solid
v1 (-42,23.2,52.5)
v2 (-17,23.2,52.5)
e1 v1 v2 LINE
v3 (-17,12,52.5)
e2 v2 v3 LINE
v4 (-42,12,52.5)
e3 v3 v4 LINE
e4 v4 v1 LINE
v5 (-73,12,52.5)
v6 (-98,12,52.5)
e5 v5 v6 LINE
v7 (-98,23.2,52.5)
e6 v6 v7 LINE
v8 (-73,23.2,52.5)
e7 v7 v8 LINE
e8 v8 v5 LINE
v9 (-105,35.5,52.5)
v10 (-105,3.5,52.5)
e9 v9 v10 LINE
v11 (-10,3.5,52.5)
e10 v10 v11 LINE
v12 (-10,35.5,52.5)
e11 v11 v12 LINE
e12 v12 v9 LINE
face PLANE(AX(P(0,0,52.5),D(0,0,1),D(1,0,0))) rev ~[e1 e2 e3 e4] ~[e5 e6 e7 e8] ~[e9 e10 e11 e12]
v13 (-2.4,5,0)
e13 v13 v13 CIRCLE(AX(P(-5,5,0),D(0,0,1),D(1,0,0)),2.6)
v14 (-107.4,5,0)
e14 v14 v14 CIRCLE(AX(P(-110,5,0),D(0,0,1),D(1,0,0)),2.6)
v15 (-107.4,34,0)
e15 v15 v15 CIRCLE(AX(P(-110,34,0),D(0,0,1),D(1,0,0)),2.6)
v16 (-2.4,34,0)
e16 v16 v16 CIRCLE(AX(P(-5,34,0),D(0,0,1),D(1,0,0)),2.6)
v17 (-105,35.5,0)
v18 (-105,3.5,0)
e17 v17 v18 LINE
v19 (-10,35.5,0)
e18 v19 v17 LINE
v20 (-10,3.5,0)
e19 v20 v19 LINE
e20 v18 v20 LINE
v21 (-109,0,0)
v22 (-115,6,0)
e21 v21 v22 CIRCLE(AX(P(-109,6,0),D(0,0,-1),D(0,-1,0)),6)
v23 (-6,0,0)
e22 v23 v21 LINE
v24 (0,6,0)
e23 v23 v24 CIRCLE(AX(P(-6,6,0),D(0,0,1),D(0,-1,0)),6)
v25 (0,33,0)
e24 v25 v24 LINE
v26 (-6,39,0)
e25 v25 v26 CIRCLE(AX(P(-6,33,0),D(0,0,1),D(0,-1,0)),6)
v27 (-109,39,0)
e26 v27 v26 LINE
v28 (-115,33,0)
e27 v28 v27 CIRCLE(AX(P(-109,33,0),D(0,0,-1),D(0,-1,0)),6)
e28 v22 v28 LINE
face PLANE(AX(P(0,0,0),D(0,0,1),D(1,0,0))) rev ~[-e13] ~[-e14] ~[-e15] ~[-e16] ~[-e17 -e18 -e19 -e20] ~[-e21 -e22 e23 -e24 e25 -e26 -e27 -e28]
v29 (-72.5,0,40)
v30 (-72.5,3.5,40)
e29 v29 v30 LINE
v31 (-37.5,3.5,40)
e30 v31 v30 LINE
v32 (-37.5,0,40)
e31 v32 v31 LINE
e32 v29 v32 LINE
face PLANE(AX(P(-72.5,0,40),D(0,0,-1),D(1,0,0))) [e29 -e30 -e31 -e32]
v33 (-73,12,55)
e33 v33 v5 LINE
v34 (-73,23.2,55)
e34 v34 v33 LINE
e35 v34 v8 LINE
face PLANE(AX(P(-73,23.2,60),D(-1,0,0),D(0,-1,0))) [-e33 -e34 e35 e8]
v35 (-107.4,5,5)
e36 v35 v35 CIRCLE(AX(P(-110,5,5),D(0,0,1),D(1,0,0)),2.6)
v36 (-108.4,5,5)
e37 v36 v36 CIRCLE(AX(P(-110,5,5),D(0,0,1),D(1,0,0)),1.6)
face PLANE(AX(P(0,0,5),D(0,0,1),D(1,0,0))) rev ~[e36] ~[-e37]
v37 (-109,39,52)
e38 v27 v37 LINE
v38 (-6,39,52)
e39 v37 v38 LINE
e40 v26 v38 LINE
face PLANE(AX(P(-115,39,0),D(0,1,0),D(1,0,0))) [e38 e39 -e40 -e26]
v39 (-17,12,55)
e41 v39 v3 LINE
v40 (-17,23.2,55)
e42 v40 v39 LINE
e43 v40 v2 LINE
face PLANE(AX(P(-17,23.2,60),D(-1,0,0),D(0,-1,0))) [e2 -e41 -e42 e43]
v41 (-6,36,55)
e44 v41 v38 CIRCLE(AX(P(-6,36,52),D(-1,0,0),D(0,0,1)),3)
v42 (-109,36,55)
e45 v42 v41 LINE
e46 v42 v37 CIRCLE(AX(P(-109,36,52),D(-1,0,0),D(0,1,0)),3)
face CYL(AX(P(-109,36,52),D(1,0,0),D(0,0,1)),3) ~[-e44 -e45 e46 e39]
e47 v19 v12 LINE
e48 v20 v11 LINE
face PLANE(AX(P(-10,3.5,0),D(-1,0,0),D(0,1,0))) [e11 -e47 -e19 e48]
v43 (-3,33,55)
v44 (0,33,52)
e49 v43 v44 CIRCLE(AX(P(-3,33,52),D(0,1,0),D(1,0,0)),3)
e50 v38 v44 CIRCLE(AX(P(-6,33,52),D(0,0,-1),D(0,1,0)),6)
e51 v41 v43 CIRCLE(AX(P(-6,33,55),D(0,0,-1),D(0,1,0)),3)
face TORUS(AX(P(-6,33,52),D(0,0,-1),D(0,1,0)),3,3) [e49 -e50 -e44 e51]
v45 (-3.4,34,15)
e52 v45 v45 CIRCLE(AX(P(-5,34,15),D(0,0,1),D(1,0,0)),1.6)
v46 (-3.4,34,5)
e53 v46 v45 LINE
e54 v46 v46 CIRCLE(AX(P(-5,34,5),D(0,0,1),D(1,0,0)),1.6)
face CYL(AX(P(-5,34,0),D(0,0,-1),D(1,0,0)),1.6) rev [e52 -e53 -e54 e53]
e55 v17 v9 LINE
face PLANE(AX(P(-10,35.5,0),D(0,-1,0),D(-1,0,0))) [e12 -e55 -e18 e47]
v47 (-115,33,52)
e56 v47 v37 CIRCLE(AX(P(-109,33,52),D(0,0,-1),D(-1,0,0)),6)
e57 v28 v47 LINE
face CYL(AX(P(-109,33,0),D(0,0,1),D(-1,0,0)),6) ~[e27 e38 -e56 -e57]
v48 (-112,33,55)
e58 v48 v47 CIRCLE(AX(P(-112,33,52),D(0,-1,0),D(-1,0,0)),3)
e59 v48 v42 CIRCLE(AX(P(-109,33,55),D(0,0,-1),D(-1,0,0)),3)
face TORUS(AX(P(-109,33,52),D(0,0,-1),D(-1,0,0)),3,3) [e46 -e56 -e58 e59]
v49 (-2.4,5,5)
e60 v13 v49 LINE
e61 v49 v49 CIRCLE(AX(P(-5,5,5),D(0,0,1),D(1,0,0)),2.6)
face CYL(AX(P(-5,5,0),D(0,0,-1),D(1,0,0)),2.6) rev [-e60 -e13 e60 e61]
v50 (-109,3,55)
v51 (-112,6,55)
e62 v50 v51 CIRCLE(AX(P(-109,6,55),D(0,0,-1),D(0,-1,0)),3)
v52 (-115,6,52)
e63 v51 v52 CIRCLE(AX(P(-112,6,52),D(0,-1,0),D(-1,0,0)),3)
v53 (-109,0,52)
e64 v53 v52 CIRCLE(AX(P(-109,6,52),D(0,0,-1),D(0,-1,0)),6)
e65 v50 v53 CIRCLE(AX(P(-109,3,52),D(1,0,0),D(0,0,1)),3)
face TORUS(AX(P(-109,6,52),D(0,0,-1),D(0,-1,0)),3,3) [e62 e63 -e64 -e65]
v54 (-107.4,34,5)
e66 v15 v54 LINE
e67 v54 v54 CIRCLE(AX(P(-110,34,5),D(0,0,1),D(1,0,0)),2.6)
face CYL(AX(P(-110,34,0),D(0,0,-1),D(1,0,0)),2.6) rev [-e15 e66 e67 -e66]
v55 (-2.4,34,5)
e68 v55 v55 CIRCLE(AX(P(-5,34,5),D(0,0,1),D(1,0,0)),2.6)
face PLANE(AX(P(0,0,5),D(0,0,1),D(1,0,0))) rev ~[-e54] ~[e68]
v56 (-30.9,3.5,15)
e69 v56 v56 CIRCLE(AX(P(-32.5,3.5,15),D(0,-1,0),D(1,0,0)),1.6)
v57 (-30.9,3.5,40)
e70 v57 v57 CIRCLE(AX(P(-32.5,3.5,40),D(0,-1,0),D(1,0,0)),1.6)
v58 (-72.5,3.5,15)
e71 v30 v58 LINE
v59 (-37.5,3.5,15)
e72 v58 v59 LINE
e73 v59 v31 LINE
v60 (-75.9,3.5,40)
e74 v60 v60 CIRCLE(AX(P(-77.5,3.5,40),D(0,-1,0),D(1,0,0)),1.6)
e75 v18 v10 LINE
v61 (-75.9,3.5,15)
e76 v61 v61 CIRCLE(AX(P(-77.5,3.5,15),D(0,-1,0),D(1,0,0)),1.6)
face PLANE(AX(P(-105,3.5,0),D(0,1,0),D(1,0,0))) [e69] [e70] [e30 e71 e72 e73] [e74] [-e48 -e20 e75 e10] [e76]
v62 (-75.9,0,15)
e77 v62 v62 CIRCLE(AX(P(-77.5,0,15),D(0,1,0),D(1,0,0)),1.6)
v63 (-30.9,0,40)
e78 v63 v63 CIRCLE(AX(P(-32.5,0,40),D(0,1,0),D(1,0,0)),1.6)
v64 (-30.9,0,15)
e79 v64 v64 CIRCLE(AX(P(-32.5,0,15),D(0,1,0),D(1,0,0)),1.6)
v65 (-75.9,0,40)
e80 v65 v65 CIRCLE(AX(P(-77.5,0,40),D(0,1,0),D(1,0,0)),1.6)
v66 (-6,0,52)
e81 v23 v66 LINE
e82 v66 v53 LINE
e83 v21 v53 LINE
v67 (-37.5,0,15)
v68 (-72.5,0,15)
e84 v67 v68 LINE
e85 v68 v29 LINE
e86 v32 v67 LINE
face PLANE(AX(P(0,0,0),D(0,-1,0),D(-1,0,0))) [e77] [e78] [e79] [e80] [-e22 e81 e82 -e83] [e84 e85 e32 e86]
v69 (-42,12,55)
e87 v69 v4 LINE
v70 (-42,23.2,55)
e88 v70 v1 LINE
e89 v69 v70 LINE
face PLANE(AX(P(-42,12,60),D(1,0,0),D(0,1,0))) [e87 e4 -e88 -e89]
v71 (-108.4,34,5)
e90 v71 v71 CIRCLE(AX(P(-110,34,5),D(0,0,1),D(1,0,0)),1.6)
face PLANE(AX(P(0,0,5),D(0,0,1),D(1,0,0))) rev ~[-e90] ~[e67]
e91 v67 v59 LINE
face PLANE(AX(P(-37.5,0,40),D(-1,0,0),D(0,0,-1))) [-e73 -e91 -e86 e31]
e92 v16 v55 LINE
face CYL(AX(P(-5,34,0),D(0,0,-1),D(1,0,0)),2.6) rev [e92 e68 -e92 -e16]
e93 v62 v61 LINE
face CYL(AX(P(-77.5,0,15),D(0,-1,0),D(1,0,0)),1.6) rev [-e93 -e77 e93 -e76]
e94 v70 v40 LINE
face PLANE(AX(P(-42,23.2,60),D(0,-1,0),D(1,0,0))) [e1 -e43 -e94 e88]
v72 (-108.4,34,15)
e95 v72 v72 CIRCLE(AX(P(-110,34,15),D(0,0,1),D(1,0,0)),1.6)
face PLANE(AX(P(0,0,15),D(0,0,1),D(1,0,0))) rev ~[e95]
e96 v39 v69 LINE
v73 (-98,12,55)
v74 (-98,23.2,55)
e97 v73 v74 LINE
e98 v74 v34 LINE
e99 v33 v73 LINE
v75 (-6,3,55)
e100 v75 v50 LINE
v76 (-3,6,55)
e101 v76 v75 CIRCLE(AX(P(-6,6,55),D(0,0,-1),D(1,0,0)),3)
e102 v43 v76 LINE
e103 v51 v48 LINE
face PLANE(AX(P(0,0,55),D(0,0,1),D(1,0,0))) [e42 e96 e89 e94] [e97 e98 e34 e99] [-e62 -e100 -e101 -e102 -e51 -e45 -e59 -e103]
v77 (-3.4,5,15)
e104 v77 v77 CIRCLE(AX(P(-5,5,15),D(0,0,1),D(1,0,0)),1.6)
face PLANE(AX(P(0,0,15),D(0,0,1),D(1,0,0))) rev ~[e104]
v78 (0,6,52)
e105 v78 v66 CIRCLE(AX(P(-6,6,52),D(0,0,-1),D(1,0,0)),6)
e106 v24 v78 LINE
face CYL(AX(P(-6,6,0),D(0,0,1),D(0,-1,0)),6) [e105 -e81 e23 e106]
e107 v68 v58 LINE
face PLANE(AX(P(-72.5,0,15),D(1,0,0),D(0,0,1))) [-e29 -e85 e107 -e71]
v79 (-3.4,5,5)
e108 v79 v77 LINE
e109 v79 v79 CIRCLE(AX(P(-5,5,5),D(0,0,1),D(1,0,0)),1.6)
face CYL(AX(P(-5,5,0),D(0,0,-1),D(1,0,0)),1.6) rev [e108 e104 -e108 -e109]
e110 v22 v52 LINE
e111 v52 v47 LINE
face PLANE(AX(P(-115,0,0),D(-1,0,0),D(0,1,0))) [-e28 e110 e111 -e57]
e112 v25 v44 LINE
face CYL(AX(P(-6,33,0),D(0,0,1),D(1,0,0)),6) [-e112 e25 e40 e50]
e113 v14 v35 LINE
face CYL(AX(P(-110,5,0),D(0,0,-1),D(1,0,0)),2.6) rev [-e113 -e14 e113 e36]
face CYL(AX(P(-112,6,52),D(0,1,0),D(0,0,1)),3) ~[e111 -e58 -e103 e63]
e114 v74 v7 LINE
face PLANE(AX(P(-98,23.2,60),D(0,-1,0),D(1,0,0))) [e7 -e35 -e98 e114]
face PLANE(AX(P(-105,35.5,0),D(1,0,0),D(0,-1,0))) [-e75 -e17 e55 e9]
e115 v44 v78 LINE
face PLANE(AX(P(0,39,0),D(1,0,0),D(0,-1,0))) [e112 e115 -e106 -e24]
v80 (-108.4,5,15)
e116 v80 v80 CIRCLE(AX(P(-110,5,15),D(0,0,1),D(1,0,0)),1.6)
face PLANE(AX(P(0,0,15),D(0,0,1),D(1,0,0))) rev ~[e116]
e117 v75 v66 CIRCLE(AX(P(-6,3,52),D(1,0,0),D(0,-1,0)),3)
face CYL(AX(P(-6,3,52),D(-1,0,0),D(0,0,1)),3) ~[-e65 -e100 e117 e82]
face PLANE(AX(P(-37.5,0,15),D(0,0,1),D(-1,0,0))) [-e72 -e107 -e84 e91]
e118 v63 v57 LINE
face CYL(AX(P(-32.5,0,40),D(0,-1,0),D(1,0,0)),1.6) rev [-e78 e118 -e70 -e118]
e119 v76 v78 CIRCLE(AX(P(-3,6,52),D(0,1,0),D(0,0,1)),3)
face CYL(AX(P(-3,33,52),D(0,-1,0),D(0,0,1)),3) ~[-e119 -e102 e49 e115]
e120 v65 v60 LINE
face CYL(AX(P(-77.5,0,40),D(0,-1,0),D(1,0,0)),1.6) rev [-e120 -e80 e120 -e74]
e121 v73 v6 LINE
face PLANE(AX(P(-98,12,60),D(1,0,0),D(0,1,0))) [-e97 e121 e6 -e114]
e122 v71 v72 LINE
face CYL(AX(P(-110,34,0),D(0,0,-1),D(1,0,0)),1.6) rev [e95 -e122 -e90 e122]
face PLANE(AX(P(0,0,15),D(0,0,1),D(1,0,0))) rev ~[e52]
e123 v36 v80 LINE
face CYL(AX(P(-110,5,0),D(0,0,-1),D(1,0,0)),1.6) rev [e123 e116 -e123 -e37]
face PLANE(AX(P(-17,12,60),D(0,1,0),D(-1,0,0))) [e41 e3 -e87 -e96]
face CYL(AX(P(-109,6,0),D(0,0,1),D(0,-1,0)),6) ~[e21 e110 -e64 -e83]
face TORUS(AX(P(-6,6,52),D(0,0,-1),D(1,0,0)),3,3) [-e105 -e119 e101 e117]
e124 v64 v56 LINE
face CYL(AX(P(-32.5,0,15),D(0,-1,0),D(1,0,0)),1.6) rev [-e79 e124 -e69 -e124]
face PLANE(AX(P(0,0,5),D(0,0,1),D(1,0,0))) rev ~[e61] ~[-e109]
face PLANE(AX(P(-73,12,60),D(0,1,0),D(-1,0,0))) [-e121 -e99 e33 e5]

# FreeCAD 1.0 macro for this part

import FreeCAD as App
import Part
import Sketcher

V = App.Vector


def edges_at(feature, points):
    """Names of the edges that pass closest to the given points."""
    edges = feature.Shape.Edges
    near = lambda p: min(range(len(edges)), key=lambda i: edges[i].distToShape(Part.Vertex(*p))[0])
    return sorted({f"Edge{near(p) + 1}" for p in points})

doc = App.newDocument("Part")
body = doc.addObject("PartDesign::Body", "Body")

sketch1 = doc.addObject("Sketcher::SketchObject", "Sketch")
body.addObject(sketch1)
sketch1.AttachmentSupport = (doc.XY_Plane, [""])
sketch1.MapMode = "FlatFace"
sketch1.addGeometry(Part.LineSegment(V(-115, 0, 0), V(0, 0, 0)), False)
sketch1.addGeometry(Part.LineSegment(V(0, 0, 0), V(0, 39, 0)), False)
sketch1.addGeometry(Part.LineSegment(V(0, 39, 0), V(-115, 39, 0)), False)
sketch1.addGeometry(Part.LineSegment(V(-115, 39, 0), V(-115, 0, 0)), False)
sketch1.addConstraint(Sketcher.Constraint("Coincident", 0, 2, 1, 1))
sketch1.addConstraint(Sketcher.Constraint("Coincident", 1, 2, 2, 1))
sketch1.addConstraint(Sketcher.Constraint("Coincident", 2, 2, 3, 1))
sketch1.addConstraint(Sketcher.Constraint("Coincident", 3, 2, 0, 1))
sketch1.addConstraint(Sketcher.Constraint("Horizontal", 0))
sketch1.addConstraint(Sketcher.Constraint("Vertical", 1))
sketch1.addConstraint(Sketcher.Constraint("Horizontal", 2))
sketch1.addConstraint(Sketcher.Constraint("Vertical", 3))
sketch1.addConstraint(Sketcher.Constraint("Coincident", 0, 2, -1, 1))
sketch1.addConstraint(Sketcher.Constraint("DistanceX", 0, 1, 0, 2, 115.0))
sketch1.addConstraint(Sketcher.Constraint("DistanceY", 1, 1, 1, 2, 39.0))
pad1 = doc.addObject("PartDesign::Pad", "Pad")
body.addObject(pad1)
pad1.Profile = sketch1
pad1.Length = 55

sketch2 = doc.addObject("Sketcher::SketchObject", "Sketch001")
body.addObject(sketch2)
sketch2.AttachmentSupport = (doc.XY_Plane, [""])
sketch2.MapMode = "FlatFace"
sketch2.addGeometry(Part.LineSegment(V(-10, 3.5, 0), V(-10, 35.5, 0)), False)
sketch2.addGeometry(Part.LineSegment(V(-10, 35.5, 0), V(-105, 35.5, 0)), False)
sketch2.addGeometry(Part.LineSegment(V(-105, 35.5, 0), V(-105, 3.5, 0)), False)
sketch2.addGeometry(Part.LineSegment(V(-105, 3.5, 0), V(-10, 3.5, 0)), False)
sketch2.addConstraint(Sketcher.Constraint("Coincident", 0, 2, 1, 1))
sketch2.addConstraint(Sketcher.Constraint("Coincident", 1, 2, 2, 1))
sketch2.addConstraint(Sketcher.Constraint("Coincident", 2, 2, 3, 1))
sketch2.addConstraint(Sketcher.Constraint("Coincident", 3, 2, 0, 1))
sketch2.addConstraint(Sketcher.Constraint("Vertical", 0))
sketch2.addConstraint(Sketcher.Constraint("Horizontal", 1))
sketch2.addConstraint(Sketcher.Constraint("Vertical", 2))
sketch2.addConstraint(Sketcher.Constraint("Horizontal", 3))
sketch2.addConstraint(Sketcher.Constraint("DistanceX", 1, 2, 1, 1, 95.0))
sketch2.addConstraint(Sketcher.Constraint("DistanceY", 0, 1, 0, 2, 32.0))
sketch2.addConstraint(Sketcher.Constraint("DistanceX", 0, 2, -1, 1, 10.0))
sketch2.addConstraint(Sketcher.Constraint("DistanceY", -1, 1, 2, 2, 3.5))
pocket1 = doc.addObject("PartDesign::Pocket", "Pocket")
body.addObject(pocket1)
pocket1.Profile = sketch2
pocket1.Length = 52.5
pocket1.Reversed = True

sketch3 = doc.addObject("Sketcher::SketchObject", "Sketch002")
body.addObject(sketch3)
sketch3.AttachmentSupport = (doc.XY_Plane, [""])
sketch3.MapMode = "FlatFace"
sketch3.addGeometry(Part.Circle(V(-5, 34, 0), V(0, 0, 1), 2.6), False)
sketch3.addGeometry(Part.Circle(V(-5, 34, 0), V(0, 0, 1), 1.6), False)
sketch3.addGeometry(Part.Circle(V(-5, 5, 0), V(0, 0, 1), 2.6), False)
sketch3.addGeometry(Part.Circle(V(-5, 5, 0), V(0, 0, 1), 1.6), False)
sketch3.addGeometry(Part.Circle(V(-110, 5, 0), V(0, 0, 1), 2.6), False)
sketch3.addGeometry(Part.Circle(V(-110, 5, 0), V(0, 0, 1), 1.6), False)
sketch3.addGeometry(Part.Circle(V(-110, 34, 0), V(0, 0, 1), 2.6), False)
sketch3.addGeometry(Part.Circle(V(-110, 34, 0), V(0, 0, 1), 1.6), False)
sketch3.addConstraint(Sketcher.Constraint("Coincident", 1, 3, 0, 3))
sketch3.addConstraint(Sketcher.Constraint("Coincident", 3, 3, 2, 3))
sketch3.addConstraint(Sketcher.Constraint("Coincident", 5, 3, 4, 3))
sketch3.addConstraint(Sketcher.Constraint("Coincident", 7, 3, 6, 3))
sketch3.addConstraint(Sketcher.Constraint("Equal", 0, 2))
sketch3.addConstraint(Sketcher.Constraint("Equal", 1, 3))
sketch3.addConstraint(Sketcher.Constraint("Equal", 2, 4))
sketch3.addConstraint(Sketcher.Constraint("Equal", 3, 5))
sketch3.addConstraint(Sketcher.Constraint("Equal", 4, 6))
sketch3.addConstraint(Sketcher.Constraint("Equal", 5, 7))
sketch3.addConstraint(Sketcher.Constraint("Horizontal", 3, 3, 4, 3))
sketch3.addConstraint(Sketcher.Constraint("Horizontal", 1, 3, 6, 3))
sketch3.addConstraint(Sketcher.Constraint("Vertical", 1, 3, 2, 3))
sketch3.addConstraint(Sketcher.Constraint("Vertical", 5, 3, 6, 3))
sketch3.addConstraint(Sketcher.Constraint("Diameter", 0, 5.2))
sketch3.addConstraint(Sketcher.Constraint("Diameter", 1, 3.2))
sketch3.addConstraint(Sketcher.Constraint("DistanceX", 0, 3, -1, 1, 5.0))
sketch3.addConstraint(Sketcher.Constraint("DistanceY", -1, 1, 2, 3, 5.0))
sketch3.addConstraint(Sketcher.Constraint("DistanceY", -1, 1, 0, 3, 34.0))
sketch3.addConstraint(Sketcher.Constraint("DistanceX", 4, 3, -1, 1, 110.0))
pocket2 = doc.addObject("PartDesign::Pocket", "Pocket001")
body.addObject(pocket2)
pocket2.Profile = sketch3
pocket2.Length = 5
pocket2.Reversed = True

sketch4 = doc.addObject("Sketcher::SketchObject", "Sketch003")
body.addObject(sketch4)
sketch4.AttachmentSupport = (doc.XY_Plane, [""])
sketch4.MapMode = "FlatFace"
sketch4.addGeometry(Part.Circle(V(-5, 34, 0), V(0, 0, 1), 1.6), False)
sketch4.addGeometry(Part.Circle(V(-5, 5, 0), V(0, 0, 1), 1.6), False)
sketch4.addGeometry(Part.Circle(V(-110, 5, 0), V(0, 0, 1), 1.6), False)
sketch4.addGeometry(Part.Circle(V(-110, 34, 0), V(0, 0, 1), 1.6), False)
sketch4.addConstraint(Sketcher.Constraint("Equal", 0, 1))
sketch4.addConstraint(Sketcher.Constraint("Equal", 1, 2))
sketch4.addConstraint(Sketcher.Constraint("Equal", 2, 3))
sketch4.addConstraint(Sketcher.Constraint("Horizontal", 1, 3, 2, 3))
sketch4.addConstraint(Sketcher.Constraint("Horizontal", 0, 3, 3, 3))
sketch4.addConstraint(Sketcher.Constraint("Vertical", 0, 3, 1, 3))
sketch4.addConstraint(Sketcher.Constraint("Vertical", 2, 3, 3, 3))
sketch4.addConstraint(Sketcher.Constraint("Diameter", 0, 3.2))
sketch4.addConstraint(Sketcher.Constraint("DistanceX", 0, 3, -1, 1, 5.0))
sketch4.addConstraint(Sketcher.Constraint("DistanceY", -1, 1, 1, 3, 5.0))
sketch4.addConstraint(Sketcher.Constraint("DistanceY", -1, 1, 0, 3, 34.0))
sketch4.addConstraint(Sketcher.Constraint("DistanceX", 2, 3, -1, 1, 110.0))
pocket3 = doc.addObject("PartDesign::Pocket", "Pocket002")
body.addObject(pocket3)
pocket3.Profile = sketch4
pocket3.Length = 15
pocket3.Reversed = True

sketch5 = doc.addObject("Sketcher::SketchObject", "Sketch004")
body.addObject(sketch5)
sketch5.AttachmentSupport = (doc.XZ_Plane, [""])
sketch5.MapMode = "FlatFace"
sketch5.addGeometry(Part.LineSegment(V(-37.5, 40, 0), V(-37.5, 15, 0)), False)
sketch5.addGeometry(Part.LineSegment(V(-37.5, 15, 0), V(-72.5, 15, 0)), False)
sketch5.addGeometry(Part.LineSegment(V(-72.5, 15, 0), V(-72.5, 40, 0)), False)
sketch5.addGeometry(Part.LineSegment(V(-72.5, 40, 0), V(-37.5, 40, 0)), False)
sketch5.addConstraint(Sketcher.Constraint("Coincident", 0, 2, 1, 1))
sketch5.addConstraint(Sketcher.Constraint("Coincident", 1, 2, 2, 1))
sketch5.addConstraint(Sketcher.Constraint("Coincident", 2, 2, 3, 1))
sketch5.addConstraint(Sketcher.Constraint("Coincident", 3, 2, 0, 1))
sketch5.addConstraint(Sketcher.Constraint("Vertical", 0))
sketch5.addConstraint(Sketcher.Constraint("Horizontal", 1))
sketch5.addConstraint(Sketcher.Constraint("Vertical", 2))
sketch5.addConstraint(Sketcher.Constraint("Horizontal", 3))
sketch5.addConstraint(Sketcher.Constraint("DistanceX", 1, 2, 1, 1, 35.0))
sketch5.addConstraint(Sketcher.Constraint("DistanceY", 0, 2, 0, 1, 25.0))
sketch5.addConstraint(Sketcher.Constraint("DistanceY", -1, 1, 0, 2, 15.0))
sketch5.addConstraint(Sketcher.Constraint("DistanceX", 0, 2, -1, 1, 37.5))
pocket4 = doc.addObject("PartDesign::Pocket", "Pocket003")
body.addObject(pocket4)
pocket4.Profile = sketch5
pocket4.Length = 15

sketch6 = doc.addObject("Sketcher::SketchObject", "Sketch005")
body.addObject(sketch6)
sketch6.AttachmentSupport = (doc.XZ_Plane, [""])
sketch6.MapMode = "FlatFace"
sketch6.addGeometry(Part.Circle(V(-32.5, 15, 0), V(0, 0, 1), 1.6), False)
sketch6.addGeometry(Part.Circle(V(-32.5, 40, 0), V(0, 0, 1), 1.6), False)
sketch6.addGeometry(Part.Circle(V(-77.5, 15, 0), V(0, 0, 1), 1.6), False)
sketch6.addGeometry(Part.Circle(V(-77.5, 40, 0), V(0, 0, 1), 1.6), False)
sketch6.addConstraint(Sketcher.Constraint("Equal", 0, 1))
sketch6.addConstraint(Sketcher.Constraint("Equal", 1, 2))
sketch6.addConstraint(Sketcher.Constraint("Equal", 2, 3))
sketch6.addConstraint(Sketcher.Constraint("Horizontal", 0, 3, 2, 3))
sketch6.addConstraint(Sketcher.Constraint("Horizontal", 1, 3, 3, 3))
sketch6.addConstraint(Sketcher.Constraint("Vertical", 0, 3, 1, 3))
sketch6.addConstraint(Sketcher.Constraint("Vertical", 2, 3, 3, 3))
sketch6.addConstraint(Sketcher.Constraint("Diameter", 0, 3.2))
sketch6.addConstraint(Sketcher.Constraint("DistanceY", 0, 3, 1, 3, 25.0))
sketch6.addConstraint(Sketcher.Constraint("DistanceY", -1, 1, 0, 3, 15.0))
sketch6.addConstraint(Sketcher.Constraint("DistanceX", 2, 3, 0, 3, 45.0))
sketch6.addConstraint(Sketcher.Constraint("DistanceX", 0, 3, -1, 1, 32.5))
pocket5 = doc.addObject("PartDesign::Pocket", "Pocket004")
body.addObject(pocket5)
pocket5.Profile = sketch6
pocket5.Length = 10

sketch7 = doc.addObject("Sketcher::SketchObject", "Sketch006")
body.addObject(sketch7)
sketch7.AttachmentSupport = (doc.XY_Plane, [""])
sketch7.MapMode = "FlatFace"
sketch7.AttachmentOffset = App.Placement(V(0, 0, 60), App.Rotation())
sketch7.addGeometry(Part.LineSegment(V(-73, 23.2, 0), V(-98, 23.2, 0)), False)
sketch7.addGeometry(Part.LineSegment(V(-98, 23.2, 0), V(-98, 12, 0)), False)
sketch7.addGeometry(Part.LineSegment(V(-98, 12, 0), V(-73, 12, 0)), False)
sketch7.addGeometry(Part.LineSegment(V(-73, 12, 0), V(-73, 23.2, 0)), False)
sketch7.addGeometry(Part.LineSegment(V(-17, 23.2, 0), V(-42, 23.2, 0)), False)
sketch7.addGeometry(Part.LineSegment(V(-42, 23.2, 0), V(-42, 12, 0)), False)
sketch7.addGeometry(Part.LineSegment(V(-42, 12, 0), V(-17, 12, 0)), False)
sketch7.addGeometry(Part.LineSegment(V(-17, 12, 0), V(-17, 23.2, 0)), False)
sketch7.addConstraint(Sketcher.Constraint("Coincident", 0, 2, 1, 1))
sketch7.addConstraint(Sketcher.Constraint("Coincident", 1, 2, 2, 1))
sketch7.addConstraint(Sketcher.Constraint("Coincident", 2, 2, 3, 1))
sketch7.addConstraint(Sketcher.Constraint("Coincident", 3, 2, 0, 1))
sketch7.addConstraint(Sketcher.Constraint("Coincident", 4, 2, 5, 1))
sketch7.addConstraint(Sketcher.Constraint("Coincident", 5, 2, 6, 1))
sketch7.addConstraint(Sketcher.Constraint("Coincident", 6, 2, 7, 1))
sketch7.addConstraint(Sketcher.Constraint("Coincident", 7, 2, 4, 1))
sketch7.addConstraint(Sketcher.Constraint("Horizontal", 0))
sketch7.addConstraint(Sketcher.Constraint("Vertical", 1))
sketch7.addConstraint(Sketcher.Constraint("Horizontal", 2))
sketch7.addConstraint(Sketcher.Constraint("Vertical", 3))
sketch7.addConstraint(Sketcher.Constraint("Horizontal", 4))
sketch7.addConstraint(Sketcher.Constraint("Vertical", 5))
sketch7.addConstraint(Sketcher.Constraint("Horizontal", 6))
sketch7.addConstraint(Sketcher.Constraint("Vertical", 7))
sketch7.addConstraint(Sketcher.Constraint("Horizontal", 3, 2, 4, 2))
sketch7.addConstraint(Sketcher.Constraint("Horizontal", 2, 2, 5, 2))
sketch7.addConstraint(Sketcher.Constraint("Equal", 2, 4))
sketch7.addConstraint(Sketcher.Constraint("DistanceX", 0, 2, 0, 1, 25.0))
sketch7.addConstraint(Sketcher.Constraint("DistanceY", 1, 2, 1, 1, 11.2))
sketch7.addConstraint(Sketcher.Constraint("DistanceX", 0, 2, -1, 1, 98.0))
sketch7.addConstraint(Sketcher.Constraint("DistanceY", -1, 1, 1, 2, 12.0))
sketch7.addConstraint(Sketcher.Constraint("DistanceX", 4, 2, -1, 1, 42.0))
pocket6 = doc.addObject("PartDesign::Pocket", "Pocket005")
body.addObject(pocket6)
pocket6.Profile = sketch7
pocket6.Length = 25
doc.recompute()

fillet = doc.addObject("PartDesign::Fillet", "Fillet")
body.addObject(fillet)
fillet.Base = (pocket6, edges_at(pocket6, [
    (0, 39, 27.5),
    (-115, 39, 27.5),
    (0, 0, 27.5),
    (-115, 0, 27.5),
]))
fillet.Radius = 6
doc.recompute()

fillet2 = doc.addObject("PartDesign::Fillet", "Fillet001")
body.addObject(fillet2)
fillet2.Base = (fillet, edges_at(fillet, [
    (-113.243, 37.243, 55),
    (-115, 19.5, 55),
    (-113.243, 1.757, 55),
    (-57.5, 0, 55),
    (-1.757, 1.757, 55),
    (0, 19.5, 55),
    (-1.757, 37.243, 55),
    (-57.5, 39, 55),
]))
fillet2.Radius = 3

doc.recompute()
